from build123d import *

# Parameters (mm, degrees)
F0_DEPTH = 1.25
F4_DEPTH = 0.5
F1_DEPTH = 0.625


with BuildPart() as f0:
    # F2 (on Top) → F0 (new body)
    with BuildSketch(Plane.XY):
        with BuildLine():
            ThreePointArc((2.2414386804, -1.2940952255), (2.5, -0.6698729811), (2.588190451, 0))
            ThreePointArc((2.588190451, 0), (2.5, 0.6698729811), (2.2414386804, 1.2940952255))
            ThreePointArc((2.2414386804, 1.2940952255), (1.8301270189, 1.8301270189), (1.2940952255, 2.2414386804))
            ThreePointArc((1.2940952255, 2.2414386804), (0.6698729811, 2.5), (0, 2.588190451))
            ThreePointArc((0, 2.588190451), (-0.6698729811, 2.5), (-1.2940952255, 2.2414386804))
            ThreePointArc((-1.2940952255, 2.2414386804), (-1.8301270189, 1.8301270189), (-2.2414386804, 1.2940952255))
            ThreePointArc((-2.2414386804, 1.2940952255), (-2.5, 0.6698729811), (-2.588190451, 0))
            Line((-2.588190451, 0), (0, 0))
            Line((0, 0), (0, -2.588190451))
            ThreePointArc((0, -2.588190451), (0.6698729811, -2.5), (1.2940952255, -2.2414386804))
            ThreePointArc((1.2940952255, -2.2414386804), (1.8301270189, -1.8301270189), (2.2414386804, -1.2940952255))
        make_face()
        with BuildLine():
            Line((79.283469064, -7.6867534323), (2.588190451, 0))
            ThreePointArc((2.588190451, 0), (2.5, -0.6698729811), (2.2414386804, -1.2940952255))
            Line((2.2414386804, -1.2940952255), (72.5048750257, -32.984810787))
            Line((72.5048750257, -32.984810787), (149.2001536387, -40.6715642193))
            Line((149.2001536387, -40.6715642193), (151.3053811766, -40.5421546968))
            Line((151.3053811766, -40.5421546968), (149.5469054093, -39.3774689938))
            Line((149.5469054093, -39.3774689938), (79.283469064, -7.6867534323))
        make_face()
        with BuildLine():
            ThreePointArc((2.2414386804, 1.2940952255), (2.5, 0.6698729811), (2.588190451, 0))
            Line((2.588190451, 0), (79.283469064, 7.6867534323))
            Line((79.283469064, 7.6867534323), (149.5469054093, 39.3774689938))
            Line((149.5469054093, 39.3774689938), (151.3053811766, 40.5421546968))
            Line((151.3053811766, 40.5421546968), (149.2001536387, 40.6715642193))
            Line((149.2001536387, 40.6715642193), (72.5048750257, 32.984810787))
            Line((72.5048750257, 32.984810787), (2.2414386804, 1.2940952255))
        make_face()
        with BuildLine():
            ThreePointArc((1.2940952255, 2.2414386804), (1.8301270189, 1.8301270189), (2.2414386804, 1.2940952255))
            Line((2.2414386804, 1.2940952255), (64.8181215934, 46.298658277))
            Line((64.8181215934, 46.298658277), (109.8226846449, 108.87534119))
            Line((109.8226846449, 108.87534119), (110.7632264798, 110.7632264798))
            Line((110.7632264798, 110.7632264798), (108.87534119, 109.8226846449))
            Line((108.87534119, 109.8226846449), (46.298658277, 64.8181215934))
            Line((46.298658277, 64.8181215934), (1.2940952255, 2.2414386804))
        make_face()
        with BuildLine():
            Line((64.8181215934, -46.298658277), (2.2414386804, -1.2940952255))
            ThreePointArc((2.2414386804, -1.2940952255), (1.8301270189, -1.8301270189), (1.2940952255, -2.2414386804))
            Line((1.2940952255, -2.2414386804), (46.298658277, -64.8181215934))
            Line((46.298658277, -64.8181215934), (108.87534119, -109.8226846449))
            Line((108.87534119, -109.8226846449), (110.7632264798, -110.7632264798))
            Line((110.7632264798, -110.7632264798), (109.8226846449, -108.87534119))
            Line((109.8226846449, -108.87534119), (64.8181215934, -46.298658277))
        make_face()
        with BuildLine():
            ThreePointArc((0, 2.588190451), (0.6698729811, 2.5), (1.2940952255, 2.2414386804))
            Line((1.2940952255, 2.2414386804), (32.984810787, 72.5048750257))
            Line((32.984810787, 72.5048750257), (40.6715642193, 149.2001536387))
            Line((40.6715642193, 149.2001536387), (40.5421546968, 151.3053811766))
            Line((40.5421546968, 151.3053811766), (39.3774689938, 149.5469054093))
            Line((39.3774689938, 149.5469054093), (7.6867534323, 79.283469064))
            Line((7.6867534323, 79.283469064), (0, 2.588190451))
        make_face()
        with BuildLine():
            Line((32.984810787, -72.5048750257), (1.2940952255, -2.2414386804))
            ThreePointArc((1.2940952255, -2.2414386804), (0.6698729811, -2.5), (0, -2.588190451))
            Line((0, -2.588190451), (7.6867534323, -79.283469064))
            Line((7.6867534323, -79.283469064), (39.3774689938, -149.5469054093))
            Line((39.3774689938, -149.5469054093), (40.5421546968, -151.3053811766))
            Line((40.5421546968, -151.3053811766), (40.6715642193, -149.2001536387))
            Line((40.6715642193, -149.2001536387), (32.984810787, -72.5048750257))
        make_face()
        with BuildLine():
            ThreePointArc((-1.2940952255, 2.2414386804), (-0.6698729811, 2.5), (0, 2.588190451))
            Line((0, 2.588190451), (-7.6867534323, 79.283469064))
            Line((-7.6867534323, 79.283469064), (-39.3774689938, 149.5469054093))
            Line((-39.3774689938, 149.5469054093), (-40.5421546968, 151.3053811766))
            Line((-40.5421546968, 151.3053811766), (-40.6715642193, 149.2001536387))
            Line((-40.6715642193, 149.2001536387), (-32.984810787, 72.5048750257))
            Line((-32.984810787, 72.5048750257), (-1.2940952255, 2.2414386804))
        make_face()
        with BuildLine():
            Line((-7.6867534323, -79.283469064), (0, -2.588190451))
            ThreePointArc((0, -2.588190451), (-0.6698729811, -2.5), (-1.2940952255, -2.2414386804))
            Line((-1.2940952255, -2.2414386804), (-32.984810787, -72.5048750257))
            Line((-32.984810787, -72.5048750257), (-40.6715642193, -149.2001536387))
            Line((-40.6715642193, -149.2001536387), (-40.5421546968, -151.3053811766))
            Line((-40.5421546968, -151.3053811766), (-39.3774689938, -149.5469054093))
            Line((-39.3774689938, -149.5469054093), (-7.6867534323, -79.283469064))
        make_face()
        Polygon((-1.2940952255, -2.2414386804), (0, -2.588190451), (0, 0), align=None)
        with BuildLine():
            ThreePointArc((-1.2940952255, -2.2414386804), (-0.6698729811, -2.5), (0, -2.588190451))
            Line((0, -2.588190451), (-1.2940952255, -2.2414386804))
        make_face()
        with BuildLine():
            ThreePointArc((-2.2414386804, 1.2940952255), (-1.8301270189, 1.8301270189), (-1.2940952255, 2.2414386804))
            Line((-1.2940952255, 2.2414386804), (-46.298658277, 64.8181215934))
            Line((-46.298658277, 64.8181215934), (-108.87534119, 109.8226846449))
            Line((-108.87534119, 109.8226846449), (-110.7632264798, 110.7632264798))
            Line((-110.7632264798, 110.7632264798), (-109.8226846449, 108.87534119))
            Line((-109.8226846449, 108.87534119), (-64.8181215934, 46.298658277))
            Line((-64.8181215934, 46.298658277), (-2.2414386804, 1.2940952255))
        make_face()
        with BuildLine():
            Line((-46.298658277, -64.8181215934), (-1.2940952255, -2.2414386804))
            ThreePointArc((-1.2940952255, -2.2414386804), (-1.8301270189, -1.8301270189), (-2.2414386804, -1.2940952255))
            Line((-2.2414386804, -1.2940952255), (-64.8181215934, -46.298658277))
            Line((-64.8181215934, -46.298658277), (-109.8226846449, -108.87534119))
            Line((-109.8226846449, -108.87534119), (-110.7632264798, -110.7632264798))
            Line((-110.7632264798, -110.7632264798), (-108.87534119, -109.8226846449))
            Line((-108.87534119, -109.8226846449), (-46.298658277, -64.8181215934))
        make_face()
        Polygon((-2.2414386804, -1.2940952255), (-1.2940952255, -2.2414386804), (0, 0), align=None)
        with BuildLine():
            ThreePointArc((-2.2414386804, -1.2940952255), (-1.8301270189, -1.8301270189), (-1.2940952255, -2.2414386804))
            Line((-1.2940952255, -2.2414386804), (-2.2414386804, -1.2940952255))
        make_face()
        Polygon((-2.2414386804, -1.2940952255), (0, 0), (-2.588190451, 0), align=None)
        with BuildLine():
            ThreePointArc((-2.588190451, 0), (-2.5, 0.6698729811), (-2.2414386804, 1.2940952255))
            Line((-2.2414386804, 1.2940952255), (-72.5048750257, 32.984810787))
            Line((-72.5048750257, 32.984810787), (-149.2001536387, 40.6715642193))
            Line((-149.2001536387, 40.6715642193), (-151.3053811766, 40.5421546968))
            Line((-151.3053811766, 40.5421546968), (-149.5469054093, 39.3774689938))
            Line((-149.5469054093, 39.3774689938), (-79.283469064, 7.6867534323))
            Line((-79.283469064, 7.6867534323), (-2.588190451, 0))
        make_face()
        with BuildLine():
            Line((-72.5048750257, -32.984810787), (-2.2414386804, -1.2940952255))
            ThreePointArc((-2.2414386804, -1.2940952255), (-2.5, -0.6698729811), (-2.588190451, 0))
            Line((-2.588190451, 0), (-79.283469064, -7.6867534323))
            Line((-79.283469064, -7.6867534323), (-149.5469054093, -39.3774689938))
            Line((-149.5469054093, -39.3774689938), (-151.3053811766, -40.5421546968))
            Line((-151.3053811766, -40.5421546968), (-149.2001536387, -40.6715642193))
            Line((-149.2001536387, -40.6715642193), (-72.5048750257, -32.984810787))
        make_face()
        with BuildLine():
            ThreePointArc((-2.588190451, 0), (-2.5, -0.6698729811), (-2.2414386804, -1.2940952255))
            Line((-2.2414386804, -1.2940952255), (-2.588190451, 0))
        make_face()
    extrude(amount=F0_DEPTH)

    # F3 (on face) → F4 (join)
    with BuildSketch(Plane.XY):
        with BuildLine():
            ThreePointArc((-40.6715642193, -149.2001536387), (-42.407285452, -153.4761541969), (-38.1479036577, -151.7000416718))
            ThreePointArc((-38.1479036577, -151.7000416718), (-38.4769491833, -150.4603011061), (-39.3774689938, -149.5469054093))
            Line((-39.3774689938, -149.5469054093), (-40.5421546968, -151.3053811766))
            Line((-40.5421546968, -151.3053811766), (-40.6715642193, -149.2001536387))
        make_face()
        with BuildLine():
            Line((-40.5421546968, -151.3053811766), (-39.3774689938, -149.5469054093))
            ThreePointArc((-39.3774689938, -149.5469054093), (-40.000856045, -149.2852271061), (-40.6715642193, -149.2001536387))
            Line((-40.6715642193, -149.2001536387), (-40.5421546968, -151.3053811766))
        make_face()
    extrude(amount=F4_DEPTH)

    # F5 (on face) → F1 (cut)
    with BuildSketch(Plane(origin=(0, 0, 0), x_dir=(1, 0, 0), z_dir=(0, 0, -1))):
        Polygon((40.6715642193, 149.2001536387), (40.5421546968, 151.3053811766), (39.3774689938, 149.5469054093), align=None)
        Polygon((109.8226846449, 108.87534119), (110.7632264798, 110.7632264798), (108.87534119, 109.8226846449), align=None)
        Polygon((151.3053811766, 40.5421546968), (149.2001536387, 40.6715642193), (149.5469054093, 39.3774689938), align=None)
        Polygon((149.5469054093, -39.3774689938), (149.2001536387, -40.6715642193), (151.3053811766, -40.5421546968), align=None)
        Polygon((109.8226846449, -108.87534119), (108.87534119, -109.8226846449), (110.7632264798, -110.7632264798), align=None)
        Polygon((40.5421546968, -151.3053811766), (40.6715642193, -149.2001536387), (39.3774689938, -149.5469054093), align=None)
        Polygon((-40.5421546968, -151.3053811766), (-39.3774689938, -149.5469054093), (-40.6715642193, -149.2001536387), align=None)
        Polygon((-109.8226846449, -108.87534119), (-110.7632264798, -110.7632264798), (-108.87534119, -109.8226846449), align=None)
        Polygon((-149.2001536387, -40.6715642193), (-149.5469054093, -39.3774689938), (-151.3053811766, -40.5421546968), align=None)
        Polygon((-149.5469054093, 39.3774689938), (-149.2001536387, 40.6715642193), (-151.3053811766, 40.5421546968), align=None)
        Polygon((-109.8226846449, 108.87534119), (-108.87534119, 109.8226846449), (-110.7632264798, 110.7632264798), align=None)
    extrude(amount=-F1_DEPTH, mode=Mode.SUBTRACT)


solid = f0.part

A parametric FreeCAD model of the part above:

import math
import FreeCAD as App
import Part
import Sketcher
Q = App.Units.Quantity


def add_polygon(sketch, points):
    """Adds a closed chain of lines whose ends are joined by coincident constraints."""
    first, n = sketch.GeometryCount, len(points)
    for a, b in zip(points, points[1:] + points[:1]):
        sketch.addGeometry(Part.LineSegment(App.Vector(*a, 0), App.Vector(*b, 0)), False)
    for i in range(n):
        sketch.addConstraint(Sketcher.Constraint("Coincident", first + i, 2, first + (i + 1) % n, 1))

doc = App.newDocument("Part")
body = doc.addObject("PartDesign::Body", "Body")

sketch1 = body.newObject("Sketcher::SketchObject", "Sketch")
sketch1.AttachmentSupport = (doc.getObject("XY_Plane"), [""])
sketch1.MapMode = "FlatFace"
add_polygon(sketch1, [(-2.2, -1.3), (-64.8, -46.3), (-109.8, -108.9), (-110.8, -110.8), (-108.9, -109.8), (-46.3, -64.8), (-1.3, -2.2), (-33, -72.5), (-40.7, -149.2), (-40.5, -151.3), (-39.4, -149.5), (-7.7, -79.3), (0, -2.6), (7.7, -79.3), (39.4, -149.5), (40.5, -151.3), (40.7, -149.2), (33, -72.5), (1.3, -2.2), (46.3, -64.8), (108.9, -109.8), (110.8, -110.8), (109.8, -108.9), (64.8, -46.3), (2.2, -1.3), (72.5, -33), (149.2, -40.7), (151.3, -40.5), (149.5, -39.4), (79.3, -7.7), (2.6, 0), (79.3, 7.7), (149.5, 39.4), (151.3, 40.5), (149.2, 40.7), (72.5, 33), (2.2, 1.3), (64.8, 46.3), (109.8, 108.9), (110.8, 110.8), (108.9, 109.8), (46.3, 64.8), (1.3, 2.2), (33, 72.5), (40.7, 149.2), (40.5, 151.3), (39.4, 149.5), (7.7, 79.3), (0, 2.6), (-7.7, 79.3), (-39.4, 149.5), (-40.5, 151.3), (-40.7, 149.2), (-33, 72.5), (-1.3, 2.2), (-46.3, 64.8), (-108.9, 109.8), (-110.8, 110.8), (-109.8, 108.9), (-64.8, 46.3), (-2.2, 1.3), (-72.5, 33), (-149.2, 40.7), (-151.3, 40.5), (-149.5, 39.4), (-79.3, 7.7), (-2.6, 0), (-79.3, -7.7), (-149.5, -39.4), (-151.3, -40.5), (-149.2, -40.7), (-72.5, -33)])
sketch1.addConstraint([
    Sketcher.Constraint("Symmetric", 0, 2, 36, 2, -1, 1),
    Sketcher.Constraint("Symmetric", 1, 2, 37, 2, -1, 1),
    Sketcher.Constraint("Symmetric", 2, 2, 38, 2, -1, 1),
    Sketcher.Constraint("Symmetric", 3, 2, 39, 2, -1, 1),
    Sketcher.Constraint("Symmetric", 4, 2, 40, 2, -1, 1),
    Sketcher.Constraint("Symmetric", 5, 2, 41, 2, -1, 1),
    Sketcher.Constraint("Symmetric", 6, 2, 42, 2, -1, 1),
    Sketcher.Constraint("Symmetric", 7, 2, 43, 2, -1, 1),
    Sketcher.Constraint("Symmetric", 8, 2, 44, 2, -1, 1),
    Sketcher.Constraint("Symmetric", 9, 2, 45, 2, -1, 1),
    Sketcher.Constraint("Symmetric", 10, 2, 46, 2, -1, 1),
    Sketcher.Constraint("Symmetric", 11, 2, 47, 2, -1, 1),
    Sketcher.Constraint("Symmetric", 12, 2, 48, 2, -1, 1),
    Sketcher.Constraint("Symmetric", 13, 2, 49, 2, -1, 1),
    Sketcher.Constraint("Symmetric", 14, 2, 50, 2, -1, 1),
    Sketcher.Constraint("Symmetric", 15, 2, 51, 2, -1, 1),
    Sketcher.Constraint("Symmetric", 16, 2, 52, 2, -1, 1),
    Sketcher.Constraint("Symmetric", 17, 2, 53, 2, -1, 1),
    Sketcher.Constraint("Symmetric", 18, 2, 54, 2, -1, 1),
    Sketcher.Constraint("Symmetric", 19, 2, 55, 2, -1, 1),
    Sketcher.Constraint("Symmetric", 20, 2, 56, 2, -1, 1),
    Sketcher.Constraint("Symmetric", 21, 2, 57, 2, -1, 1),
    Sketcher.Constraint("Symmetric", 22, 2, 58, 2, -1, 1),
    Sketcher.Constraint("Symmetric", 23, 2, 59, 2, -1, 1),
    Sketcher.Constraint("Symmetric", 24, 2, 60, 2, -1, 1),
    Sketcher.Constraint("Symmetric", 25, 2, 61, 2, -1, 1),
    Sketcher.Constraint("Symmetric", 26, 2, 62, 2, -1, 1),
    Sketcher.Constraint("Symmetric", 27, 2, 63, 2, -1, 1),
    Sketcher.Constraint("Symmetric", 28, 2, 64, 2, -1, 1),
    Sketcher.Constraint("Symmetric", 29, 2, 65, 2, -1, 1),
    Sketcher.Constraint("Symmetric", 30, 2, 66, 2, -1, 1),
    Sketcher.Constraint("Symmetric", 31, 2, 67, 2, -1, 1),
    Sketcher.Constraint("Symmetric", 32, 2, 68, 2, -1, 1),
    Sketcher.Constraint("Symmetric", 33, 2, 69, 2, -1, 1),
    Sketcher.Constraint("Symmetric", 34, 2, 70, 2, -1, 1),
    Sketcher.Constraint("Symmetric", 35, 2, 71, 2, -1, 1),
    Sketcher.Constraint("Symmetric", 10, 2, 12, 2, -2),
    Sketcher.Constraint("Symmetric", 9, 2, 13, 2, -2),
    Sketcher.Constraint("Symmetric", 8, 2, 14, 2, -2),
    Sketcher.Constraint("Symmetric", 7, 2, 15, 2, -2),
    Sketcher.Constraint("Symmetric", 6, 2, 16, 2, -2),
    Sketcher.Constraint("Symmetric", 5, 2, 17, 2, -2),
    Sketcher.Constraint("Symmetric", 4, 2, 18, 2, -2),
    Sketcher.Constraint("Symmetric", 3, 2, 19, 2, -2),
    Sketcher.Constraint("Symmetric", 2, 2, 20, 2, -2),
    Sketcher.Constraint("Symmetric", 1, 2, 21, 2, -2),
    Sketcher.Constraint("Symmetric", 0, 2, 22, 2, -2),
    Sketcher.Constraint("Symmetric", 35, 2, 59, 2, -2),
    Sketcher.Constraint("Symmetric", 34, 2, 60, 2, -2),
    Sketcher.Constraint("Symmetric", 33, 2, 61, 2, -2),
    Sketcher.Constraint("Symmetric", 32, 2, 62, 2, -2),
    Sketcher.Constraint("Symmetric", 31, 2, 63, 2, -2),
    Sketcher.Constraint("Symmetric", 30, 2, 64, 2, -2),
    Sketcher.Constraint("PointOnObject", 11, 2, -2),
    Sketcher.Constraint("PointOnObject", 29, 2, -1),
    Sketcher.Constraint("Parallel", 0, 4),
    Sketcher.Constraint("Parallel", 1, 5),
    Sketcher.Constraint("Parallel", 6, 10),
    Sketcher.Constraint("Parallel", 7, 11),
    Sketcher.Constraint("Perpendicular", 4, 18),
    Sketcher.Constraint("Perpendicular", 2, 20),
    Sketcher.Constraint("Perpendicular", 10, 24),
    Sketcher.Constraint("Perpendicular", 11, 25),
    Sketcher.Constraint("Perpendicular", 8, 26),
    Sketcher.Constraint("Perpendicular", 9, 27),
    Sketcher.Constraint("Parallel", 24, 28),
    Sketcher.Constraint("Parallel", 25, 29),
    Sketcher.Constraint("Equal", 0, 1),
    Sketcher.Constraint("Equal", 2, 3),
    Sketcher.Constraint("Equal", 1, 4),
    Sketcher.Constraint("Equal", 4, 5),
    Sketcher.Constraint("Equal", 5, 6),
    Sketcher.Constraint("Equal", 6, 7),
    Sketcher.Constraint("Equal", 3, 8),
    Sketcher.Constraint("Equal", 8, 9),
    Sketcher.Constraint("Equal", 7, 10),
    Sketcher.Constraint("Equal", 10, 11),
    Sketcher.Constraint("Equal", 23, 24),
    Sketcher.Constraint("Equal", 24, 25),
    Sketcher.Constraint("Equal", 21, 26),
    Sketcher.Constraint("Equal", 26, 27),
    Sketcher.Constraint("Equal", 25, 28),
    Sketcher.Constraint("Equal", 28, 29),
    Sketcher.Constraint("Distance", 2, 2.109201),
    Sketcher.Constraint("DistanceX", 0, 2, -1, 1, 64.818122),
    Sketcher.Constraint("DistanceY", 0, 2, -1, 1, 46.298658),
    Sketcher.Constraint("DistanceY", 1, 2, -1, 1, 108.875341),
    Sketcher.Constraint("DistanceX", 6, 2, -1, 1, 32.984811),
    Sketcher.Constraint("DistanceY", 8, 2, -1, 1, 151.305381),
    Sketcher.Constraint("DistanceX", 9, 2, -1, 1, 39.377469),
    Sketcher.Constraint("DistanceY", 10, 2, -1, 1, 79.283469),
])
pad1 = body.newObject("PartDesign::Pad", "Pad")
pad1.Profile = sketch1
pad1.Length = 1.25

sketch2 = body.newObject("Sketcher::SketchObject", "Sketch001")
sketch2.AttachmentSupport = (doc.getObject("XY_Plane"), [""])
sketch2.MapMode = "FlatFace"
sketch2.addGeometry([
    Part.ArcOfCircle(Part.Circle(App.Vector(-40.6, -151.7, 0), App.Vector(0, 0, 1), 2.5), math.radians(91), math.radians(360)),
    Part.ArcOfCircle(Part.Circle(App.Vector(-40.6, -151.7, 0), App.Vector(0, 0, 1), 2.5), math.radians(0), math.radians(59)),
    Part.ArcOfCircle(Part.Circle(App.Vector(-40.6, -151.7, 0), App.Vector(0, 0, 1), 2.5), math.radians(59), math.radians(91)),
], False)
sketch2.addConstraint([
    Sketcher.Constraint("Tangent", 0, 2, 1, 1),
    Sketcher.Constraint("Tangent", 1, 2, 2, 1),
    Sketcher.Constraint("Tangent", 2, 2, 0, 1),
    Sketcher.Constraint("Horizontal", 2, 3, 0, 2),
    Sketcher.Constraint("Radius", 0, 2.5),
    Sketcher.Constraint("DistanceY", 0, 3, -1, 1, 151.700042),
    Sketcher.Constraint("DistanceX", 1, 2, -1, 1, 39.377469),
    Sketcher.Constraint("DistanceY", 1, 2, 2, 2, 0.346752),
    Sketcher.Constraint("DistanceX", 2, 2, 0, 3, 0.023661),
])
pad2 = body.newObject("PartDesign::Pad", "Pad001")
pad2.Profile = sketch2
pad2.Length = 0.5

sketch3 = body.newObject("Sketcher::SketchObject", "Sketch002")
sketch3.AttachmentSupport = (doc.getObject("XY_Plane"), [""])
sketch3.MapMode = "FlatFace"
add_polygon(sketch3, [(40.7, -149.2), (40.5, -151.3), (39.4, -149.5)])
add_polygon(sketch3, [(109.8, -108.9), (110.8, -110.8), (108.9, -109.8)])
add_polygon(sketch3, [(151.3, -40.5), (149.2, -40.7), (149.5, -39.4)])
add_polygon(sketch3, [(149.5, 39.4), (149.2, 40.7), (151.3, 40.5)])
add_polygon(sketch3, [(109.8, 108.9), (108.9, 109.8), (110.8, 110.8)])
add_polygon(sketch3, [(40.5, 151.3), (40.7, 149.2), (39.4, 149.5)])
add_polygon(sketch3, [(-40.5, 151.3), (-39.4, 149.5), (-40.7, 149.2)])
add_polygon(sketch3, [(-109.8, 108.9), (-110.8, 110.8), (-108.9, 109.8)])
add_polygon(sketch3, [(-149.2, 40.7), (-149.5, 39.4), (-151.3, 40.5)])
add_polygon(sketch3, [(-149.5, -39.4), (-149.2, -40.7), (-151.3, -40.5)])
add_polygon(sketch3, [(-109.8, -108.9), (-108.9, -109.8), (-110.8, -110.8)])
sketch3.addConstraint([
    Sketcher.Constraint("Symmetric", 1, 2, 18, 2, -1, 1),
    Sketcher.Constraint("Symmetric", 2, 2, 19, 2, -1, 1),
    Sketcher.Constraint("Symmetric", 0, 2, 20, 2, -1, 1),
    Sketcher.Constraint("Symmetric", 3, 2, 21, 2, -1, 1),
    Sketcher.Constraint("Symmetric", 4, 2, 22, 2, -1, 1),
    Sketcher.Constraint("Symmetric", 5, 2, 23, 2, -1, 1),
    Sketcher.Constraint("Symmetric", 7, 2, 24, 2, -1, 1),
    Sketcher.Constraint("Symmetric", 8, 2, 25, 2, -1, 1),
    Sketcher.Constraint("Symmetric", 6, 2, 26, 2, -1, 1),
    Sketcher.Constraint("Symmetric", 9, 2, 27, 2, -1, 1),
    Sketcher.Constraint("Symmetric", 10, 2, 28, 2, -1, 1),
    Sketcher.Constraint("Symmetric", 11, 2, 29, 2, -1, 1),
    Sketcher.Constraint("Symmetric", 12, 2, 30, 2, -1, 1),
    Sketcher.Constraint("Symmetric", 13, 2, 31, 2, -1, 1),
    Sketcher.Constraint("Symmetric", 14, 2, 32, 2, -1, 1),
    Sketcher.Constraint("Symmetric", 16, 2, 18, 2, -2),
    Sketcher.Constraint("Symmetric", 15, 2, 19, 2, -2),
    Sketcher.Constraint("Symmetric", 17, 2, 20, 2, -2),
    Sketcher.Constraint("Symmetric", 13, 2, 21, 2, -2),
    Sketcher.Constraint("Symmetric", 12, 2, 22, 2, -2),
    Sketcher.Constraint("Symmetric", 14, 2, 23, 2, -2),
    Sketcher.Constraint("Symmetric", 11, 2, 24, 2, -2),
    Sketcher.Constraint("Symmetric", 10, 2, 25, 2, -2),
    Sketcher.Constraint("Symmetric", 9, 2, 26, 2, -2),
    Sketcher.Constraint("Perpendicular", 2, 9),
    Sketcher.Constraint("Perpendicular", 0, 10),
    Sketcher.Constraint("Perpendicular", 1, 11),
    Sketcher.Constraint("Perpendicular", 5, 12),
    Sketcher.Constraint("Perpendicular", 3, 13),
    Sketcher.Constraint("Equal", 0, 1),
    Sketcher.Constraint("Equal", 1, 3),
    Sketcher.Constraint("Equal", 2, 5),
    Sketcher.Constraint("Equal", 4, 6),
    Sketcher.Constraint("Angle", 2, Q("15 deg")),
    Sketcher.Constraint("DistanceY", 25, 2, 19, 2, 108.657999),
    Sketcher.Constraint("Distance", 0, 2.109201),
    Sketcher.Constraint("DistanceY", 0, 2, -1, 1, 151.305381),
    Sketcher.Constraint("DistanceX", -1, 1, 1, 2, 39.377469),
    Sketcher.Constraint("DistanceX", -1, 1, 4, 2, 108.875341),
    Sketcher.Constraint("DistanceY", 5, 2, -1, 1, 108.875341),
    Sketcher.Constraint("DistanceY", 7, 2, -1, 1, 39.377469),
    Sketcher.Constraint("DistanceX", -1, 1, 8, 2, 151.305381),
])
pocket1 = body.newObject("PartDesign::Pocket", "Pocket")
pocket1.Profile = sketch3
pocket1.Length = 0.625
pocket1.Reversed = True

doc.recompute()
